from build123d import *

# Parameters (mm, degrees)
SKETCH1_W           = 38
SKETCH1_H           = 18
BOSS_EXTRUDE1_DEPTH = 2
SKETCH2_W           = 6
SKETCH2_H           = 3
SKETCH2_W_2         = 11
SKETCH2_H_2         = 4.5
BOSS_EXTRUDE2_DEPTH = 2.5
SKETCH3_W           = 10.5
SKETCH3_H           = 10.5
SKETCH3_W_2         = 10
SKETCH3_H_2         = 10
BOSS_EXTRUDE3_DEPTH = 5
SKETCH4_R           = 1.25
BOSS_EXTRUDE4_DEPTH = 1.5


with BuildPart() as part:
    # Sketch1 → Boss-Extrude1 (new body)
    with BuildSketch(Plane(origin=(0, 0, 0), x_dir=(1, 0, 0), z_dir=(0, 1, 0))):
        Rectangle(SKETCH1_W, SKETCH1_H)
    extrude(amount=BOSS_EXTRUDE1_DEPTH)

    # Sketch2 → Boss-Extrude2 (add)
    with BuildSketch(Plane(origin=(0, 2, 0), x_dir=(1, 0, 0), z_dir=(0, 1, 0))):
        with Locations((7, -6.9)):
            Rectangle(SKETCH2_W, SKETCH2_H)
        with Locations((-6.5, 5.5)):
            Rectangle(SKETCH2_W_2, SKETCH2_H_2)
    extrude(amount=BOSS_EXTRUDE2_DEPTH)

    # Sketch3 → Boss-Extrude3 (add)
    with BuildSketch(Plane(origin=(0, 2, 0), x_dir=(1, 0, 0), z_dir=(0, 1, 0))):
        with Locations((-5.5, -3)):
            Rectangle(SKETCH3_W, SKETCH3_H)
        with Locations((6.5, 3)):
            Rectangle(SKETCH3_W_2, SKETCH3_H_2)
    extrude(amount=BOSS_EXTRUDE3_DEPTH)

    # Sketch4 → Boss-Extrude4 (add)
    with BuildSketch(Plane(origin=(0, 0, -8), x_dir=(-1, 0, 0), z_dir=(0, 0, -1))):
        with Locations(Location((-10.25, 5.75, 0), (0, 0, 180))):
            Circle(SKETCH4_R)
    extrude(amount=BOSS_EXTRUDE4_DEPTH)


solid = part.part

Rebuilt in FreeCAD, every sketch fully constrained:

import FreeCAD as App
import Part
import Sketcher

doc = App.newDocument("Part")
body = doc.addObject("PartDesign::Body", "Body")

# Sketch on XZ plane
sketch1 = body.newObject("Sketcher::SketchObject", "Sketch")
sketch1.AttachmentSupport = (doc.getObject("XZ_Plane"), [""])
sketch1.MapMode = "FlatFace"
sketch1.addGeometry([
    Part.LineSegment(App.Vector(-19, -9, 0), App.Vector(-19, 9, 0)),
    Part.LineSegment(App.Vector(-19, 9, 0), App.Vector(19, 9, 0)),
    Part.LineSegment(App.Vector(19, 9, 0), App.Vector(19, -9, 0)),
    Part.LineSegment(App.Vector(19, -9, 0), App.Vector(-19, -9, 0)),
], False)
sketch1.addConstraint([
    Sketcher.Constraint("Coincident", 0, 2, 1, 1),
    Sketcher.Constraint("Coincident", 1, 2, 2, 1),
    Sketcher.Constraint("Coincident", 2, 2, 3, 1),
    Sketcher.Constraint("Coincident", 3, 2, 0, 1),
    Sketcher.Constraint("Vertical", 0),
    Sketcher.Constraint("Horizontal", 1),
    Sketcher.Constraint("Vertical", 2),
    Sketcher.Constraint("Horizontal", 3),
    Sketcher.Constraint("Symmetric", 0, 2, 2, 2, -1, 1),
    Sketcher.Constraint("DistanceX", 1, 1, 1, 2, 38.0),
    Sketcher.Constraint("DistanceY", 0, 1, 0, 2, 18.0),
])
pad1 = body.newObject("PartDesign::Pad", "Pad")
pad1.Profile = sketch1
pad1.Length = 2
pad1.Reversed = True

# Sketch on XZ plane
sketch2 = body.newObject("Sketcher::SketchObject", "Sketch001")
sketch2.AttachmentSupport = (doc.getObject("XZ_Plane"), [""])
sketch2.MapMode = "FlatFace"
sketch2.AttachmentOffset = App.Placement(App.Vector(0, 0, -2), App.Rotation())
sketch2.addGeometry([
    Part.LineSegment(App.Vector(4, 5.4, 0), App.Vector(4, 8.4, 0)),  # 0
    Part.LineSegment(App.Vector(4, 8.4, 0), App.Vector(10, 8.4, 0)),  # 1
    Part.LineSegment(App.Vector(10, 8.4, 0), App.Vector(10, 5.4, 0)),  # 2
    Part.LineSegment(App.Vector(10, 5.4, 0), App.Vector(4, 5.4, 0)),  # 3
    Part.LineSegment(App.Vector(-12, -7.8, 0), App.Vector(-12, -3.2, 0)),  # 4
    Part.LineSegment(App.Vector(-12, -3.2, 0), App.Vector(-1, -3.2, 0)),  # 5
    Part.LineSegment(App.Vector(-1, -3.2, 0), App.Vector(-1, -7.8, 0)),  # 6
    Part.LineSegment(App.Vector(-1, -7.8, 0), App.Vector(-12, -7.8, 0)),  # 7
], False)
sketch2.addConstraint([
    Sketcher.Constraint("Coincident", 0, 2, 1, 1),
    Sketcher.Constraint("Coincident", 1, 2, 2, 1),
    Sketcher.Constraint("Coincident", 2, 2, 3, 1),
    Sketcher.Constraint("Coincident", 3, 2, 0, 1),
    Sketcher.Constraint("Coincident", 4, 2, 5, 1),
    Sketcher.Constraint("Coincident", 5, 2, 6, 1),
    Sketcher.Constraint("Coincident", 6, 2, 7, 1),
    Sketcher.Constraint("Coincident", 7, 2, 4, 1),
    Sketcher.Constraint("Vertical", 0),
    Sketcher.Constraint("Horizontal", 1),
    Sketcher.Constraint("Vertical", 2),
    Sketcher.Constraint("Horizontal", 3),
    Sketcher.Constraint("Vertical", 4),
    Sketcher.Constraint("Horizontal", 5),
    Sketcher.Constraint("Vertical", 6),
    Sketcher.Constraint("Horizontal", 7),
    Sketcher.Constraint("DistanceX", 1, 1, 1, 2, 6.0),
    Sketcher.Constraint("DistanceX", 5, 1, 5, 2, 11.0),
    Sketcher.Constraint("DistanceY", 0, 1, 0, 2, 3.0),
    Sketcher.Constraint("DistanceY", 4, 1, 4, 2, 4.5),
    Sketcher.Constraint("DistanceX", -1, 1, 0, 2, 4.0),
    Sketcher.Constraint("DistanceX", 4, 2, -1, 1, 12.0),
    Sketcher.Constraint("DistanceY", -1, 1, 0, 2, 8.4),
    Sketcher.Constraint("DistanceY", 4, 2, -1, 1, 3.25),
])
pad2 = body.newObject("PartDesign::Pad", "Pad001")
pad2.Profile = sketch2
pad2.Length = 2.5
pad2.Reversed = True

# Sketch on XZ plane
sketch3 = body.newObject("Sketcher::SketchObject", "Sketch002")
sketch3.AttachmentSupport = (doc.getObject("XZ_Plane"), [""])
sketch3.MapMode = "FlatFace"
sketch3.AttachmentOffset = App.Placement(App.Vector(0, 0, -2), App.Rotation())
sketch3.addGeometry([
    Part.LineSegment(App.Vector(-11, -2, 0), App.Vector(-11, 8, 0)),  # 0
    Part.LineSegment(App.Vector(-11, 8, 0), App.Vector(0, 8, 0)),  # 1
    Part.LineSegment(App.Vector(0, 8, 0), App.Vector(0, -2, 0)),  # 2
    Part.LineSegment(App.Vector(0, -2, 0), App.Vector(-11, -2, 0)),  # 3
    Part.LineSegment(App.Vector(2, -8, 0), App.Vector(2, 2, 0)),  # 4
    Part.LineSegment(App.Vector(2, 2, 0), App.Vector(12, 2, 0)),  # 5
    Part.LineSegment(App.Vector(12, 2, 0), App.Vector(12, -8, 0)),  # 6
    Part.LineSegment(App.Vector(12, -8, 0), App.Vector(2, -8, 0)),  # 7
], False)
sketch3.addConstraint([
    Sketcher.Constraint("Coincident", 0, 2, 1, 1),
    Sketcher.Constraint("Coincident", 1, 2, 2, 1),
    Sketcher.Constraint("Coincident", 2, 2, 3, 1),
    Sketcher.Constraint("Coincident", 3, 2, 0, 1),
    Sketcher.Constraint("Coincident", 4, 2, 5, 1),
    Sketcher.Constraint("Coincident", 5, 2, 6, 1),
    Sketcher.Constraint("Coincident", 6, 2, 7, 1),
    Sketcher.Constraint("Coincident", 7, 2, 4, 1),
    Sketcher.Constraint("Vertical", 0),
    Sketcher.Constraint("Horizontal", 1),
    Sketcher.Constraint("Vertical", 2),
    Sketcher.Constraint("Horizontal", 3),
    Sketcher.Constraint("Vertical", 4),
    Sketcher.Constraint("Horizontal", 5),
    Sketcher.Constraint("Vertical", 6),
    Sketcher.Constraint("Horizontal", 7),
    Sketcher.Constraint("Equal", 3, 0),
    Sketcher.Constraint("Equal", 7, 4),
    Sketcher.Constraint("DistanceX", 5, 1, 5, 2, 10.0),
    Sketcher.Constraint("DistanceX", 1, 1, 1, 2, 10.5),
    Sketcher.Constraint("DistanceY", -1, 1, 4, 2, 2.0),
    Sketcher.Constraint("DistanceX", -1, 1, 4, 2, 1.5),
    Sketcher.Constraint("DistanceX", 0, 2, -1, 1, 10.75),
    Sketcher.Constraint("DistanceY", -1, 1, 0, 2, 8.25),
])
pad3 = body.newObject("PartDesign::Pad", "Pad002")
pad3.Profile = sketch3
pad3.Length = 5
pad3.Reversed = True

# Sketch on XY plane
sketch4 = body.newObject("Sketcher::SketchObject", "Sketch003")
sketch4.AttachmentSupport = (doc.getObject("XY_Plane"), [""])
sketch4.MapMode = "FlatFace"
sketch4.AttachmentOffset = App.Placement(App.Vector(0, 0, -8), App.Rotation())
sketch4.addGeometry(Part.Circle(App.Vector(10.2, 5.8, 0), App.Vector(0, 0, 1), 1.2), False)
sketch4.addConstraint([
    Sketcher.Constraint("Diameter", 0, 2.5),
    Sketcher.Constraint("DistanceX", -1, 1, 0, 3, 10.25),
    Sketcher.Constraint("DistanceY", -1, 1, 0, 3, 5.75),
])
pad4 = body.newObject("PartDesign::Pad", "Pad003")
pad4.Profile = sketch4
pad4.Length = 1.5
pad4.Reversed = True

doc.recompute()
